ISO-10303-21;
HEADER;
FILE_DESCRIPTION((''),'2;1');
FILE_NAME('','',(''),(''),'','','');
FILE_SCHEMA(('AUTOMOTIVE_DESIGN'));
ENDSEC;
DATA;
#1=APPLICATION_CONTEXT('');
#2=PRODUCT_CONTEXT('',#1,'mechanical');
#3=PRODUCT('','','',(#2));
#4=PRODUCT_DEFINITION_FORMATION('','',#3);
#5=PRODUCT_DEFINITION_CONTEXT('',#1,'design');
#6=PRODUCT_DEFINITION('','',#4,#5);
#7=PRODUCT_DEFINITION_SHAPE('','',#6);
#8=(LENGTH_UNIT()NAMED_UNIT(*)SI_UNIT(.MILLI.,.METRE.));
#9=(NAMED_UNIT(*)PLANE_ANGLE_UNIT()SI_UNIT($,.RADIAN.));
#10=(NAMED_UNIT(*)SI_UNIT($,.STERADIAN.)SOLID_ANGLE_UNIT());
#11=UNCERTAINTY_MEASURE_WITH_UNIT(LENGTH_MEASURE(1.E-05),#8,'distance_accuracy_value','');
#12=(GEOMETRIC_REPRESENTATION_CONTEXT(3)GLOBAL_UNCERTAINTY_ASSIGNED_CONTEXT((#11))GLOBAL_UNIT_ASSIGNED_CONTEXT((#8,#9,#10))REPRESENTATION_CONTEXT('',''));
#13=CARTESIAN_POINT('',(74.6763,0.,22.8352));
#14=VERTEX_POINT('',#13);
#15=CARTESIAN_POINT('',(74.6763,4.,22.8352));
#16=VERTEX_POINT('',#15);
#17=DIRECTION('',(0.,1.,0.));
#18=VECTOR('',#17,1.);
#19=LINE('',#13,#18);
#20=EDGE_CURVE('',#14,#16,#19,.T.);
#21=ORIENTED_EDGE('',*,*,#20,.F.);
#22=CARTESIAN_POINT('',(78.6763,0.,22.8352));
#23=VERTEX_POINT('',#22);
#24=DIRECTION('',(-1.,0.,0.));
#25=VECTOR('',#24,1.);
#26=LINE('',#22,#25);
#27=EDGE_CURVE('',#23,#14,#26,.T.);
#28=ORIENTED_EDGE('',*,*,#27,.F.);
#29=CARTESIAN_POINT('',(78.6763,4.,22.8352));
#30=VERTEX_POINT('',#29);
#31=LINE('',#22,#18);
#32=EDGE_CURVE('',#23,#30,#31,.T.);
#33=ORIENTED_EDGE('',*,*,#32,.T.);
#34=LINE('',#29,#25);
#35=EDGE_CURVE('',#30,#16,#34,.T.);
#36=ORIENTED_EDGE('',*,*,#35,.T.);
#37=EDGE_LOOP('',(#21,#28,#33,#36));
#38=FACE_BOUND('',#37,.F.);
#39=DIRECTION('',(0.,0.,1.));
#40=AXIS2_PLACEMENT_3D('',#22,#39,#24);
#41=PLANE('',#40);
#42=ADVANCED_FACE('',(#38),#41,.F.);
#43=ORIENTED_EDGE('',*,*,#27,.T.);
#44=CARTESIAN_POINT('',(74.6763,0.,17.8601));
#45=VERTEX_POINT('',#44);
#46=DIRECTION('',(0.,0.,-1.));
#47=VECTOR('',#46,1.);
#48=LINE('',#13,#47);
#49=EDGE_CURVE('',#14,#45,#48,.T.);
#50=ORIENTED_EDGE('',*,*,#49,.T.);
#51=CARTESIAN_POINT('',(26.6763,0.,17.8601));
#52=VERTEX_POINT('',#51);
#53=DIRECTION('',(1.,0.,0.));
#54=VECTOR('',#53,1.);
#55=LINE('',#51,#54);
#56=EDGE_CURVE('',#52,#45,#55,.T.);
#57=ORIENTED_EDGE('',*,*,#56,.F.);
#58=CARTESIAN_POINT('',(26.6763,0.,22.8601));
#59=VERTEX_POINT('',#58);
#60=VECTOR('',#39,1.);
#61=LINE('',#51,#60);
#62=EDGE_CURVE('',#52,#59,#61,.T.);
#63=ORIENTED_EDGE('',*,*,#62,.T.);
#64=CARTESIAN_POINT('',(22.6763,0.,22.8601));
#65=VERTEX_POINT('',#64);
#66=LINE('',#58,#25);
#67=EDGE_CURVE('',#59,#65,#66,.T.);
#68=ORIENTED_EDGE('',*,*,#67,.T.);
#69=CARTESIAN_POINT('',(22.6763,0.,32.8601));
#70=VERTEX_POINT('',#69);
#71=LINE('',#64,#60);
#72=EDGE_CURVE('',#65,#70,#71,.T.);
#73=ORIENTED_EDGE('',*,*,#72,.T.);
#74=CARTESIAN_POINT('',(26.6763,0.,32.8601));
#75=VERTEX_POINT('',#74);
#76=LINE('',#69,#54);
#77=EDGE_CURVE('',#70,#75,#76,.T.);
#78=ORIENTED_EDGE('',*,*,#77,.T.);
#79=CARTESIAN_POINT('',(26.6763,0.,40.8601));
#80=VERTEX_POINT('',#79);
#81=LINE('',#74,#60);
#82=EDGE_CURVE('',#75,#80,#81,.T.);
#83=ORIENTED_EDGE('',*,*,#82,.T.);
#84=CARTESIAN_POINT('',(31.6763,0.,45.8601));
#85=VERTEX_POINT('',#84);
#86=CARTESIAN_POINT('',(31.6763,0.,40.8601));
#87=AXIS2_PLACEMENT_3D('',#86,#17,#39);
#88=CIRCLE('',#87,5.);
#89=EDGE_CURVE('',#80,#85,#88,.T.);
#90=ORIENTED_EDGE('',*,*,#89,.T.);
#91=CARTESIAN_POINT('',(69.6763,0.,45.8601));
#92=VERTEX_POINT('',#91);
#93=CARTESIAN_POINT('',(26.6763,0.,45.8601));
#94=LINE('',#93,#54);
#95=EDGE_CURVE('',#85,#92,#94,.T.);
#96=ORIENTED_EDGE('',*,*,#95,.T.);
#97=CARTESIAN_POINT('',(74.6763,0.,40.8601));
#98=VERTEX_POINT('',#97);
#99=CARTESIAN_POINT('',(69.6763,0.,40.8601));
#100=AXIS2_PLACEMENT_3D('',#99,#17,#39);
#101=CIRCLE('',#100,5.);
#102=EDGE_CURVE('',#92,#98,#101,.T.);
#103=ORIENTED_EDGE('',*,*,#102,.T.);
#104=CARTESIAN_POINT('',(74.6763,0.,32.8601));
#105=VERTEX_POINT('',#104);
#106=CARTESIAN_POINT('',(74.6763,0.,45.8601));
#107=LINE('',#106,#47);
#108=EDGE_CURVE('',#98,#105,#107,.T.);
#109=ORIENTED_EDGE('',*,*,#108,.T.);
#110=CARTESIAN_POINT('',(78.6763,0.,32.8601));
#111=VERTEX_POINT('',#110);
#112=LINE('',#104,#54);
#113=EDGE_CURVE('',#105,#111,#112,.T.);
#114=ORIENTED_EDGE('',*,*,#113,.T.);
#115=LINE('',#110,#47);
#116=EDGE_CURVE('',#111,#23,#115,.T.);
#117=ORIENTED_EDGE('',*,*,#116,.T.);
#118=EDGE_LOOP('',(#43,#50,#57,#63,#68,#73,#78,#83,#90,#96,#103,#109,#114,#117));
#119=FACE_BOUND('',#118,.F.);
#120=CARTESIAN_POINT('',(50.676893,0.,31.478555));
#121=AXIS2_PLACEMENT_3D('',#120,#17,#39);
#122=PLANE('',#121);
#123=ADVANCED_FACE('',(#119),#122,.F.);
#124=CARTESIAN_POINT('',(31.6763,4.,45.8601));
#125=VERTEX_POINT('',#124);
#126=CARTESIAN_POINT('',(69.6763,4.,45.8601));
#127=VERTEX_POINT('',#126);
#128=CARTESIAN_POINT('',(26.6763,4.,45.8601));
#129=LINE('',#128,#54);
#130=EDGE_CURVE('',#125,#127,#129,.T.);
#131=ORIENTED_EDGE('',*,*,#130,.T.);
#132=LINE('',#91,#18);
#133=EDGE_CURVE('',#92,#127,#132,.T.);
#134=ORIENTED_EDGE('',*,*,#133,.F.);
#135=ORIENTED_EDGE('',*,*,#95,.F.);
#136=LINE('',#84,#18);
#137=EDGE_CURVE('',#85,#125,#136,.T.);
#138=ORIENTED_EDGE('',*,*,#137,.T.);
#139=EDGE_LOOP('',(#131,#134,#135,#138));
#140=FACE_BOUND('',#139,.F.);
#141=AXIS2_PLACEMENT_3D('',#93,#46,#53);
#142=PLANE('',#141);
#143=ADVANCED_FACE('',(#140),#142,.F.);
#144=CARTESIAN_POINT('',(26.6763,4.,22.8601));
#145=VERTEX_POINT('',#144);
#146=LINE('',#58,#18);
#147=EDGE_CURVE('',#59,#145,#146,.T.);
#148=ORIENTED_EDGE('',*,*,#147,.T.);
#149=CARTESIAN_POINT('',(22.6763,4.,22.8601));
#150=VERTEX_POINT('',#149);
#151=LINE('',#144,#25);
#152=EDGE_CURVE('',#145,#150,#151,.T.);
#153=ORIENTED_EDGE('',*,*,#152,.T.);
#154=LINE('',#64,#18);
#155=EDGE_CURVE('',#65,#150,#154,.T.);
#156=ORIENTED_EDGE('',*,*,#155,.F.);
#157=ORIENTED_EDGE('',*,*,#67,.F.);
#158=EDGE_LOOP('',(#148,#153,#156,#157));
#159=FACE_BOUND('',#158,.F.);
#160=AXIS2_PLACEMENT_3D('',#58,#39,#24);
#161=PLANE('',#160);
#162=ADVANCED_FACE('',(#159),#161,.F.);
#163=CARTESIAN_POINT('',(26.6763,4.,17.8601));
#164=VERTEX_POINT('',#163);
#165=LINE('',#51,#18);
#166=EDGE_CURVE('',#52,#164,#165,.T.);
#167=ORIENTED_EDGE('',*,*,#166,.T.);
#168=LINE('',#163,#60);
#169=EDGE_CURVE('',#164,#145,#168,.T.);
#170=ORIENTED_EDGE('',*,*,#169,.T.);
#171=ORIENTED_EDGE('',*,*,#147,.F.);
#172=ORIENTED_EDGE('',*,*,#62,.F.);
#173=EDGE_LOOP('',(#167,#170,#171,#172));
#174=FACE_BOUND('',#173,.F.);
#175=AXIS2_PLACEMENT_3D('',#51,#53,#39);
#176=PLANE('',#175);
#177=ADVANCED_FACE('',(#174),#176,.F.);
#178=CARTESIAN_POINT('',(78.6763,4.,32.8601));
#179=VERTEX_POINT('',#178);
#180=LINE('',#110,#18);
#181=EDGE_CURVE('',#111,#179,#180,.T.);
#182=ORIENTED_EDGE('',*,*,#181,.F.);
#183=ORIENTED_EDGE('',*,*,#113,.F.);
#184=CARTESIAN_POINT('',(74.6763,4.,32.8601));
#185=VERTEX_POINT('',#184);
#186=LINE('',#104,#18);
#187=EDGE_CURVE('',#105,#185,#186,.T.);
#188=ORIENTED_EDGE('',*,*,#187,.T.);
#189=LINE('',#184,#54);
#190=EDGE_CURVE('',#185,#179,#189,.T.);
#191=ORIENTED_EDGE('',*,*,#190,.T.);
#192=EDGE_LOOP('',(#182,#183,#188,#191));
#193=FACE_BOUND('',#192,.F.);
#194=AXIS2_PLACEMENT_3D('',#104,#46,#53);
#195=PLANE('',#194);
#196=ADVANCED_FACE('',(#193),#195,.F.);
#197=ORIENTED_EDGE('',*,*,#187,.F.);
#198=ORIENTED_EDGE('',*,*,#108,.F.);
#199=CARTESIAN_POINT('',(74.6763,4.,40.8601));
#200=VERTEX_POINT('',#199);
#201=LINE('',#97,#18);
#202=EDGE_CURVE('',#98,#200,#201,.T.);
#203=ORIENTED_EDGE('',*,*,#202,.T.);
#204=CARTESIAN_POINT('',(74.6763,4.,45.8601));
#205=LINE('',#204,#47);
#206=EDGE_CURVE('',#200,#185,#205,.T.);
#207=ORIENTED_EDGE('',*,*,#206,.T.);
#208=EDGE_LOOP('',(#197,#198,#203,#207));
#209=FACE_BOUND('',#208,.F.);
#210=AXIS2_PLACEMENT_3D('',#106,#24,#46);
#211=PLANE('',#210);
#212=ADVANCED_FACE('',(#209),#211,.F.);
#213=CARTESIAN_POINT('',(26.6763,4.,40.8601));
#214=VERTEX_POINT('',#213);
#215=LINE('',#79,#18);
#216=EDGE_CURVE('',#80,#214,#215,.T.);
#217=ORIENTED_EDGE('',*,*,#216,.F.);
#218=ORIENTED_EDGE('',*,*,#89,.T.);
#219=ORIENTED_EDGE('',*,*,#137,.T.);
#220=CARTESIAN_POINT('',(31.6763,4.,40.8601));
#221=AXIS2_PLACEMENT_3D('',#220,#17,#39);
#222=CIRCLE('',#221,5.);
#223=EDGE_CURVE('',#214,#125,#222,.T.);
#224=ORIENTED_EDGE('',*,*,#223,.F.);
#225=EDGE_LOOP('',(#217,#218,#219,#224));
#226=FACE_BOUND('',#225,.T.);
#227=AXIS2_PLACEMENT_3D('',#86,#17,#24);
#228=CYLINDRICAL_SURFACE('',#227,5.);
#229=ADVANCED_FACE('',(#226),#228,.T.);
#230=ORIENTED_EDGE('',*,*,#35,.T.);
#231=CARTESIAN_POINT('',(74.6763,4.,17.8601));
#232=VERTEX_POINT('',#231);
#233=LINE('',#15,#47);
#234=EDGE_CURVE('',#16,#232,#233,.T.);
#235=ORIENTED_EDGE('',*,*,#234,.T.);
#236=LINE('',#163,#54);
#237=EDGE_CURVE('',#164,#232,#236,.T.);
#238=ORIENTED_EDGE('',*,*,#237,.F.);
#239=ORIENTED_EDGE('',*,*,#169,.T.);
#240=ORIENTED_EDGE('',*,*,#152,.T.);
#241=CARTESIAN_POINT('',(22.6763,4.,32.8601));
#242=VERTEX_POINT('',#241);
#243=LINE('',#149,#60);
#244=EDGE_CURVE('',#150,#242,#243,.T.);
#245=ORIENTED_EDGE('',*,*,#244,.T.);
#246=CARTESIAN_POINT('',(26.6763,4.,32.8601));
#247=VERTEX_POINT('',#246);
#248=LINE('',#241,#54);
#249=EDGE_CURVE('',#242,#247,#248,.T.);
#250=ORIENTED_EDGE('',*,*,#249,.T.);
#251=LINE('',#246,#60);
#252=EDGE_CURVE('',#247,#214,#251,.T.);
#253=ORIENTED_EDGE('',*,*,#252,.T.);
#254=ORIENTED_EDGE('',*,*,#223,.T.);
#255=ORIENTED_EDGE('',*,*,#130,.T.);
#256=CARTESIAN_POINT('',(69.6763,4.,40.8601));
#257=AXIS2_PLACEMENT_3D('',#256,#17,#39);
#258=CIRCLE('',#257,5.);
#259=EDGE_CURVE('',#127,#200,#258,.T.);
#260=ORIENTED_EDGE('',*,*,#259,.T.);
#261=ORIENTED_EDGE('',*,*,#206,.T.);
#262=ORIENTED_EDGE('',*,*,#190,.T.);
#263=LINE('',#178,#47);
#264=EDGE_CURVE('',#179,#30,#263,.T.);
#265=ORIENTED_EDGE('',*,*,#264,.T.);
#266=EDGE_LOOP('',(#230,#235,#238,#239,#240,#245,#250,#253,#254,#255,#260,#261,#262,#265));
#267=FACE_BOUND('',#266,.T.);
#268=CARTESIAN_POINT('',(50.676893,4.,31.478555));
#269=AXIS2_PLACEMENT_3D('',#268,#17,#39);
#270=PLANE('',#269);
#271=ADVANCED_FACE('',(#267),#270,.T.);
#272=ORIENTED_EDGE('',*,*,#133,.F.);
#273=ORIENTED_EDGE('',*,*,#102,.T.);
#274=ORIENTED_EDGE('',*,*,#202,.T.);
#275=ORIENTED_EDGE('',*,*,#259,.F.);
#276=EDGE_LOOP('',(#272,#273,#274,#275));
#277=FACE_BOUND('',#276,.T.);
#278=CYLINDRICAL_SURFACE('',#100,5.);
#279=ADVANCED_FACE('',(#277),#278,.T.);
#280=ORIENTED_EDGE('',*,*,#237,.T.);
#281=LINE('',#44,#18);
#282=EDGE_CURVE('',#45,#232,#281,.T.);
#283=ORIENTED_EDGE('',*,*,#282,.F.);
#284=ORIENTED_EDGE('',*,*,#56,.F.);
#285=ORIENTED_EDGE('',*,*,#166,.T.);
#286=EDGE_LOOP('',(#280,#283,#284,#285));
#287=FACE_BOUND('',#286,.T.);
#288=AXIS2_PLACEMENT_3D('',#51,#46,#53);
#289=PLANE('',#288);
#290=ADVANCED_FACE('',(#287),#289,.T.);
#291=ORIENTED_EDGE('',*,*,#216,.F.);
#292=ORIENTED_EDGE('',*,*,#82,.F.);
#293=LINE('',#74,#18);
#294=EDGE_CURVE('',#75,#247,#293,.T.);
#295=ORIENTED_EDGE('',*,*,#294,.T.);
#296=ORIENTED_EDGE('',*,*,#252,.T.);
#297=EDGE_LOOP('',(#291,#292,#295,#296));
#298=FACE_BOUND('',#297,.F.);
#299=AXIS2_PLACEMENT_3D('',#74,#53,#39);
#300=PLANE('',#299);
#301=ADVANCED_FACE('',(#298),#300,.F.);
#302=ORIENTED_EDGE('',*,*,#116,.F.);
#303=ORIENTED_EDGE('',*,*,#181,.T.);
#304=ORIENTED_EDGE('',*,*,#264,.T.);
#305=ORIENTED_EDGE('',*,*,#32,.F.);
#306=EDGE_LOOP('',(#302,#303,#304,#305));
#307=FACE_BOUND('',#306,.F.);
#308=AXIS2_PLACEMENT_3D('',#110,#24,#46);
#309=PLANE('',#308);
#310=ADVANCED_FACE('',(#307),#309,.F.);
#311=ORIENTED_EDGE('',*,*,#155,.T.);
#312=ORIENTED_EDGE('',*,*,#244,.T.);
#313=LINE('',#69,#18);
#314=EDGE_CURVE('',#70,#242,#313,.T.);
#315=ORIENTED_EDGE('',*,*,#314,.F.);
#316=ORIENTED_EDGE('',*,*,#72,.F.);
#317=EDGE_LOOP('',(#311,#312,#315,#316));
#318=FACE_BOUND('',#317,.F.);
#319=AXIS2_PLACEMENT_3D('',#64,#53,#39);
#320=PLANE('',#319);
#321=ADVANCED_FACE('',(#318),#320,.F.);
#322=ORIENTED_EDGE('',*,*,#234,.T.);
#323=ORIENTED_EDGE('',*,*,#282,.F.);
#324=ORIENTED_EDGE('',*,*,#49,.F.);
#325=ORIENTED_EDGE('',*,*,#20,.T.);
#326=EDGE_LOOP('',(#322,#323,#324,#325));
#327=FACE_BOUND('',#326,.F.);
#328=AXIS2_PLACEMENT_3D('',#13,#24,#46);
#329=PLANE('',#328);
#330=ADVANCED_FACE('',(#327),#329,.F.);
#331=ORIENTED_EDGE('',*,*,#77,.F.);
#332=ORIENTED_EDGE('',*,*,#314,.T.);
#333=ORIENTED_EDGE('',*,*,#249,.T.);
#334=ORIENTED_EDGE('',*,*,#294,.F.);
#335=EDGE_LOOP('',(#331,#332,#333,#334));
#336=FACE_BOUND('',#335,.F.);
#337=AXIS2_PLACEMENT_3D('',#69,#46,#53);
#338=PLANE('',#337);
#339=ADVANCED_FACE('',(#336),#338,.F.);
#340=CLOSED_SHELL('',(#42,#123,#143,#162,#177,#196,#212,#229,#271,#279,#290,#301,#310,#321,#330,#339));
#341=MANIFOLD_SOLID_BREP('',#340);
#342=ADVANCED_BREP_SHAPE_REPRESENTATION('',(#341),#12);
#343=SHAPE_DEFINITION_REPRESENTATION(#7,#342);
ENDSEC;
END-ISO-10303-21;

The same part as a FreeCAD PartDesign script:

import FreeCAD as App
import Part
import Sketcher
from FreeCAD import Vector


def edges_at(feature, points):
    """Names of the edges that pass closest to the given points."""
    edges = feature.Shape.Edges
    near = lambda p: min(range(len(edges)), key=lambda i: edges[i].distToShape(Part.Vertex(*p))[0])
    return sorted({f"Edge{near(p) + 1}" for p in points})


def add_polygon(sketch, points):
    """Adds a closed chain of lines whose ends are joined by coincident constraints."""
    first, n = sketch.GeometryCount, len(points)
    for a, b in zip(points, points[1:] + points[:1]):
        sketch.addGeometry(Part.LineSegment(App.Vector(*a, 0), App.Vector(*b, 0)), False)
    for i in range(n):
        sketch.addConstraint(Sketcher.Constraint("Coincident", first + i, 2, first + (i + 1) % n, 1))

doc = App.newDocument("Part")
body = doc.addObject("PartDesign::Body", "Body")

# Sketch on XZ plane
sketch1 = doc.addObject("Sketcher::SketchObject", "Sketch")
body.addObject(sketch1)
sketch1.AttachmentSupport = (doc.XZ_Plane, [""])
sketch1.MapMode = "FlatFace"
add_polygon(sketch1, [(74.6763, 22.8352), (78.6763, 22.8352), (78.6763, 32.8601), (74.6763, 32.8601), (74.6763, 45.8601), (26.6763, 45.8601), (26.6763, 32.8601), (22.6763, 32.8601), (22.6763, 22.8601), (26.6763, 22.8601), (26.6763, 17.8601), (74.6763, 17.8601)])  # lines 0-11
sketch1.addConstraint([
    Sketcher.Constraint("Horizontal", 0),
    Sketcher.Constraint("Vertical", 1),
    Sketcher.Constraint("Horizontal", 2),
    Sketcher.Constraint("Vertical", 3),
    Sketcher.Constraint("Horizontal", 4),
    Sketcher.Constraint("Vertical", 5),
    Sketcher.Constraint("Horizontal", 6),
    Sketcher.Constraint("Vertical", 7),
    Sketcher.Constraint("Horizontal", 8),
    Sketcher.Constraint("Vertical", 9),
    Sketcher.Constraint("Horizontal", 10),
    Sketcher.Constraint("Vertical", 11),
    Sketcher.Constraint("Horizontal", 2, 2, 5, 2),
    Sketcher.Constraint("Vertical", 5, 2, 8, 2),
    Sketcher.Constraint("Vertical", 3, 2, 10, 2),
    Sketcher.Constraint("Equal", 2, 6),
    Sketcher.Constraint("DistanceX", 0, 1, 0, 2, 4.0),
    Sketcher.Constraint("DistanceX", 4, 2, 4, 1, 48.0),
    Sketcher.Constraint("DistanceY", 3, 1, 3, 2, 13.0),
    Sketcher.Constraint("DistanceY", 7, 2, 7, 1, 10.0),
    Sketcher.Constraint("DistanceY", 9, 2, 9, 1, 5.0),
    Sketcher.Constraint("DistanceY", 1, 1, 1, 2, 10.025),
    Sketcher.Constraint("DistanceY", -1, 1, 1, 2, 32.86),
    Sketcher.Constraint("DistanceX", -1, 1, 0, 2, 78.6763),
])
pad1 = doc.addObject("PartDesign::Pad", "Pad")
body.addObject(pad1)
pad1.Profile = sketch1
pad1.Length = 4
pad1.Reversed = True
doc.recompute()

fillet = doc.addObject("PartDesign::Fillet", "Fillet")
body.addObject(fillet)
fillet.Base = (pad1, edges_at(pad1, [(26.676, 2, 45.86), (74.676, 2, 45.86)]))
fillet.Radius = 5

doc.recompute()
